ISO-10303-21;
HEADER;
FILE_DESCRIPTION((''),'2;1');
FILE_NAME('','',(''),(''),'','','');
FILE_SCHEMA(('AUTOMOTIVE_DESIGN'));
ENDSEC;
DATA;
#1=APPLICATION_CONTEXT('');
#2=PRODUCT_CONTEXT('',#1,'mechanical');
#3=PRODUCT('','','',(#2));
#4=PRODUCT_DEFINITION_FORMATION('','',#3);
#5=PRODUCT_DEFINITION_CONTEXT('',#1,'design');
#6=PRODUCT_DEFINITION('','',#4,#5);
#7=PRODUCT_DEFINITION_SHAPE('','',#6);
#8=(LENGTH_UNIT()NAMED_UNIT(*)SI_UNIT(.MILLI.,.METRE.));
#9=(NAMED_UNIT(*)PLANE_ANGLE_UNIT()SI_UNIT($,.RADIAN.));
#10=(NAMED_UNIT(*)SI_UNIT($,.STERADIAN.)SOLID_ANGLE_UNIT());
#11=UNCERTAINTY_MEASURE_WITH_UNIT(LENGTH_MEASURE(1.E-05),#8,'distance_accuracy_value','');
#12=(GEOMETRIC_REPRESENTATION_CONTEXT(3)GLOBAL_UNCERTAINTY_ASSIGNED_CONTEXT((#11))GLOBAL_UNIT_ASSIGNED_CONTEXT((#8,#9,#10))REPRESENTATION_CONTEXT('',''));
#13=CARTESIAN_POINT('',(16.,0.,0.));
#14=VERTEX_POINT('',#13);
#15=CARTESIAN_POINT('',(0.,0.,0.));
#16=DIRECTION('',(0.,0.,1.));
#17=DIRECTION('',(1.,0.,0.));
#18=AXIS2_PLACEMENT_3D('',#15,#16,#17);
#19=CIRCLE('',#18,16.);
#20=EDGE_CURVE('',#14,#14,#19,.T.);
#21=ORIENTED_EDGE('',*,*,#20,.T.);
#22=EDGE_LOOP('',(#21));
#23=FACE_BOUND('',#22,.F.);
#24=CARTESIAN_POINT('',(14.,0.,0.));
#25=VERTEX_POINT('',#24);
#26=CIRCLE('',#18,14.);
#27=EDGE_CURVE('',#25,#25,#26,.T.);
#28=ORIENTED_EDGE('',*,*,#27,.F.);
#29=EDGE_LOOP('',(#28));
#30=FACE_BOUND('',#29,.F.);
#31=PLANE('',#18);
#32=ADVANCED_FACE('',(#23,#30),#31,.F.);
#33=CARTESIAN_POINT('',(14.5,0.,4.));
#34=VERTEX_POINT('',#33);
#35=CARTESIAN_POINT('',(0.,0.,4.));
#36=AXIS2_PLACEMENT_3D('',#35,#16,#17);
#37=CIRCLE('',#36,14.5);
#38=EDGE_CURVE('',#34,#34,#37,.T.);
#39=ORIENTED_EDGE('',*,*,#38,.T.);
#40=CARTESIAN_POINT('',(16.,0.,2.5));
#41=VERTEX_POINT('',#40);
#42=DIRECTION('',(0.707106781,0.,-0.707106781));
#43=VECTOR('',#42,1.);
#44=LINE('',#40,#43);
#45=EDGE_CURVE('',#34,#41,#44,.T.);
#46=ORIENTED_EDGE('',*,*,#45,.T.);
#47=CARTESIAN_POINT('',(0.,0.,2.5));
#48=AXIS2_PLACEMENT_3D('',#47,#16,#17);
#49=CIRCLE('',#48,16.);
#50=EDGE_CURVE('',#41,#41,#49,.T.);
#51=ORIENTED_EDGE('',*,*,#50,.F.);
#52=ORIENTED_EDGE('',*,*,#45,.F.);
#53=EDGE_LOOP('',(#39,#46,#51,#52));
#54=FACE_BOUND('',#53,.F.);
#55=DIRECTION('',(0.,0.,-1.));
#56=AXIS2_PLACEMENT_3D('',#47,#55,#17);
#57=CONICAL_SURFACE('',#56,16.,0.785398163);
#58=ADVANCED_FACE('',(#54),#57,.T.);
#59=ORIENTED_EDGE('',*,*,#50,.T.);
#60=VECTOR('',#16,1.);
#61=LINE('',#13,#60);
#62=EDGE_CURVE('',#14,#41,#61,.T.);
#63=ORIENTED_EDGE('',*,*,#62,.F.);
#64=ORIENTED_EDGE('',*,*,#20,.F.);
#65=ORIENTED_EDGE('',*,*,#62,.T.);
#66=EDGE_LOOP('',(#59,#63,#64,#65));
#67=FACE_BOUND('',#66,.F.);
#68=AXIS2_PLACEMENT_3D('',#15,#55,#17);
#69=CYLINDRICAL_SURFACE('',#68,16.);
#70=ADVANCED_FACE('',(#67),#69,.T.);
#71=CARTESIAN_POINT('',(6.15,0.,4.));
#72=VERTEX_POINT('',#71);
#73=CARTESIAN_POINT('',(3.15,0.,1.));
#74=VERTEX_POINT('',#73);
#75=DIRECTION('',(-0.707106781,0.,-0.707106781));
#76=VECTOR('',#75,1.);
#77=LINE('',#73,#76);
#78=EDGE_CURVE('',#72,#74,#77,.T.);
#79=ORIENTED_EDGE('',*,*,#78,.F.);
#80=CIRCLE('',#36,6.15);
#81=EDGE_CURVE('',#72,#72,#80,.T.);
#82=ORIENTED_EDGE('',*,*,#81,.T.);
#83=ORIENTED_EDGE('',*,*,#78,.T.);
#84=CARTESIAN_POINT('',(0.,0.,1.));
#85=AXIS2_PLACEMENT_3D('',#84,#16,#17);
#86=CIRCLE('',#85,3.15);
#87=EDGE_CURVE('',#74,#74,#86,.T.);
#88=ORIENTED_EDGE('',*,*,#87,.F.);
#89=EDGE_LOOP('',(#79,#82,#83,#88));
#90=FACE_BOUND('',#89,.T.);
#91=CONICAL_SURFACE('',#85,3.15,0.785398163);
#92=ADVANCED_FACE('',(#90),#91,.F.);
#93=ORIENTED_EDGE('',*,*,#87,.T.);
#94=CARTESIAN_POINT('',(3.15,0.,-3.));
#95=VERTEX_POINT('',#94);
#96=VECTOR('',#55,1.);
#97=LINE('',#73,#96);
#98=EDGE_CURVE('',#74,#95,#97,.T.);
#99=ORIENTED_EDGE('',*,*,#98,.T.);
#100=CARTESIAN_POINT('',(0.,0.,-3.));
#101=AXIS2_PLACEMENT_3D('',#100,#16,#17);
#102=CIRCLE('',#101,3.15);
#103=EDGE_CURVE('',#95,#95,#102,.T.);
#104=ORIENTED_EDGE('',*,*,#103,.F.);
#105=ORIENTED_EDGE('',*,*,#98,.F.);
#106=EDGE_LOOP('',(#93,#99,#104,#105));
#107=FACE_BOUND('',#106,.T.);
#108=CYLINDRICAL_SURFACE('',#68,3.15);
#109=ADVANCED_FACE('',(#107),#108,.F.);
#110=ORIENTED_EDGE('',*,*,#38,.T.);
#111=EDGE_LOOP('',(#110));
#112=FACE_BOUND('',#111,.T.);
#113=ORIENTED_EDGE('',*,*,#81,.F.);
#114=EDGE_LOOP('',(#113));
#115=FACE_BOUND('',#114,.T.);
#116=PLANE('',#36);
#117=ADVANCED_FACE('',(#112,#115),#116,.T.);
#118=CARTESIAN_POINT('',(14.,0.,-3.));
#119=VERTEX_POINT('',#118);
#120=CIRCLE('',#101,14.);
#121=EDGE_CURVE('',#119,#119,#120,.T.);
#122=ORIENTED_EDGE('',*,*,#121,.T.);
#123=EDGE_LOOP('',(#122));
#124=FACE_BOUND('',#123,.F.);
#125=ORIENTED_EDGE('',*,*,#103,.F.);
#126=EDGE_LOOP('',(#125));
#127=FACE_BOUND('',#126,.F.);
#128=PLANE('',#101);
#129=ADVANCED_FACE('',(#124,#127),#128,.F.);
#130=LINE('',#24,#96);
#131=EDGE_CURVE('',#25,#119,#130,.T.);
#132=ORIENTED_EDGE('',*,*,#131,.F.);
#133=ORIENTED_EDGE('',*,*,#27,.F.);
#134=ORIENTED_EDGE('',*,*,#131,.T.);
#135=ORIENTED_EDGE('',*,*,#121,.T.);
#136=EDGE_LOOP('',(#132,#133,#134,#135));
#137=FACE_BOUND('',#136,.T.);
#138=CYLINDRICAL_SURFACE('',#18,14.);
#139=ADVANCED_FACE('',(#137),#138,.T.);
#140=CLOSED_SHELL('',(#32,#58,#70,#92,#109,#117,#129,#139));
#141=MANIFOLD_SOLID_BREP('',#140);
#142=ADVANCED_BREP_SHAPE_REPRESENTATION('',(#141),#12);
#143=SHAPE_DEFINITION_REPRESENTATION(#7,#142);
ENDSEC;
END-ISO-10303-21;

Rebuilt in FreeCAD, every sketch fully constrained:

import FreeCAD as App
import Part
import Sketcher
Q = App.Units.Quantity


def edges_at(feature, points):
    """Names of the edges that pass closest to the given points."""
    edges = feature.Shape.Edges
    near = lambda p: min(range(len(edges)), key=lambda i: edges[i].distToShape(Part.Vertex(*p))[0])
    return sorted({f"Edge{near(p) + 1}" for p in points})

doc = App.newDocument("Part")
body = doc.addObject("PartDesign::Body", "Body")

# Sketch on XY plane
sketch1 = body.newObject("Sketcher::SketchObject", "Sketch")
sketch1.AttachmentSupport = (doc.getObject("XY_Plane"), [""])
sketch1.MapMode = "FlatFace"
sketch1.addGeometry([
    Part.Circle(App.Vector(0, 0, 0), App.Vector(0, 0, 1), 16),
    Part.Circle(App.Vector(0, 0, 0), App.Vector(0, 0, 1), 3.1),
], False)
sketch1.addConstraint([
    Sketcher.Constraint("Coincident", 0, 3, -1, 1),
    Sketcher.Constraint("Coincident", 1, 3, -1, 1),
    Sketcher.Constraint("Diameter", 0, Q("32 mm")),
    Sketcher.Constraint("Diameter", 1, Q("6.3 mm")),
])
pad1 = body.newObject("PartDesign::Pad", "Pad")
pad1.Profile = sketch1
pad1.Length = 4

# Sketch on XY plane
sketch2 = body.newObject("Sketcher::SketchObject", "Sketch001")
sketch2.AttachmentSupport = (doc.getObject("XY_Plane"), [""])
sketch2.MapMode = "FlatFace"
sketch2.addGeometry([
    Part.Circle(App.Vector(0, 0, 0), App.Vector(0, 0, 1), 14),
    Part.Circle(App.Vector(0, 0, 0), App.Vector(0, 0, 1), 3.1),
], False)
sketch2.addConstraint([
    Sketcher.Constraint("Coincident", 0, 3, -1, 1),
    Sketcher.Constraint("Coincident", 1, 3, -1, 1),
    Sketcher.Constraint("Diameter", 0, Q("28 mm")),
    Sketcher.Constraint("Diameter", 1, Q("6.3 mm")),
])
pad2 = body.newObject("PartDesign::Pad", "Pad001")
pad2.Profile = sketch2
pad2.Length = 3
pad2.Reversed = True
doc.recompute()

chamfer = body.newObject("PartDesign::Chamfer", "Chamfer")
chamfer.Base = (pad2, edges_at(pad2, [(-3.15, 0, 4)]))
chamfer.Size = 3
doc.recompute()

chamfer2 = body.newObject("PartDesign::Chamfer", "Chamfer001")
chamfer2.Base = (chamfer, edges_at(chamfer, [(-16, 0, 4)]))
chamfer2.Size = 1.5

doc.recompute()
